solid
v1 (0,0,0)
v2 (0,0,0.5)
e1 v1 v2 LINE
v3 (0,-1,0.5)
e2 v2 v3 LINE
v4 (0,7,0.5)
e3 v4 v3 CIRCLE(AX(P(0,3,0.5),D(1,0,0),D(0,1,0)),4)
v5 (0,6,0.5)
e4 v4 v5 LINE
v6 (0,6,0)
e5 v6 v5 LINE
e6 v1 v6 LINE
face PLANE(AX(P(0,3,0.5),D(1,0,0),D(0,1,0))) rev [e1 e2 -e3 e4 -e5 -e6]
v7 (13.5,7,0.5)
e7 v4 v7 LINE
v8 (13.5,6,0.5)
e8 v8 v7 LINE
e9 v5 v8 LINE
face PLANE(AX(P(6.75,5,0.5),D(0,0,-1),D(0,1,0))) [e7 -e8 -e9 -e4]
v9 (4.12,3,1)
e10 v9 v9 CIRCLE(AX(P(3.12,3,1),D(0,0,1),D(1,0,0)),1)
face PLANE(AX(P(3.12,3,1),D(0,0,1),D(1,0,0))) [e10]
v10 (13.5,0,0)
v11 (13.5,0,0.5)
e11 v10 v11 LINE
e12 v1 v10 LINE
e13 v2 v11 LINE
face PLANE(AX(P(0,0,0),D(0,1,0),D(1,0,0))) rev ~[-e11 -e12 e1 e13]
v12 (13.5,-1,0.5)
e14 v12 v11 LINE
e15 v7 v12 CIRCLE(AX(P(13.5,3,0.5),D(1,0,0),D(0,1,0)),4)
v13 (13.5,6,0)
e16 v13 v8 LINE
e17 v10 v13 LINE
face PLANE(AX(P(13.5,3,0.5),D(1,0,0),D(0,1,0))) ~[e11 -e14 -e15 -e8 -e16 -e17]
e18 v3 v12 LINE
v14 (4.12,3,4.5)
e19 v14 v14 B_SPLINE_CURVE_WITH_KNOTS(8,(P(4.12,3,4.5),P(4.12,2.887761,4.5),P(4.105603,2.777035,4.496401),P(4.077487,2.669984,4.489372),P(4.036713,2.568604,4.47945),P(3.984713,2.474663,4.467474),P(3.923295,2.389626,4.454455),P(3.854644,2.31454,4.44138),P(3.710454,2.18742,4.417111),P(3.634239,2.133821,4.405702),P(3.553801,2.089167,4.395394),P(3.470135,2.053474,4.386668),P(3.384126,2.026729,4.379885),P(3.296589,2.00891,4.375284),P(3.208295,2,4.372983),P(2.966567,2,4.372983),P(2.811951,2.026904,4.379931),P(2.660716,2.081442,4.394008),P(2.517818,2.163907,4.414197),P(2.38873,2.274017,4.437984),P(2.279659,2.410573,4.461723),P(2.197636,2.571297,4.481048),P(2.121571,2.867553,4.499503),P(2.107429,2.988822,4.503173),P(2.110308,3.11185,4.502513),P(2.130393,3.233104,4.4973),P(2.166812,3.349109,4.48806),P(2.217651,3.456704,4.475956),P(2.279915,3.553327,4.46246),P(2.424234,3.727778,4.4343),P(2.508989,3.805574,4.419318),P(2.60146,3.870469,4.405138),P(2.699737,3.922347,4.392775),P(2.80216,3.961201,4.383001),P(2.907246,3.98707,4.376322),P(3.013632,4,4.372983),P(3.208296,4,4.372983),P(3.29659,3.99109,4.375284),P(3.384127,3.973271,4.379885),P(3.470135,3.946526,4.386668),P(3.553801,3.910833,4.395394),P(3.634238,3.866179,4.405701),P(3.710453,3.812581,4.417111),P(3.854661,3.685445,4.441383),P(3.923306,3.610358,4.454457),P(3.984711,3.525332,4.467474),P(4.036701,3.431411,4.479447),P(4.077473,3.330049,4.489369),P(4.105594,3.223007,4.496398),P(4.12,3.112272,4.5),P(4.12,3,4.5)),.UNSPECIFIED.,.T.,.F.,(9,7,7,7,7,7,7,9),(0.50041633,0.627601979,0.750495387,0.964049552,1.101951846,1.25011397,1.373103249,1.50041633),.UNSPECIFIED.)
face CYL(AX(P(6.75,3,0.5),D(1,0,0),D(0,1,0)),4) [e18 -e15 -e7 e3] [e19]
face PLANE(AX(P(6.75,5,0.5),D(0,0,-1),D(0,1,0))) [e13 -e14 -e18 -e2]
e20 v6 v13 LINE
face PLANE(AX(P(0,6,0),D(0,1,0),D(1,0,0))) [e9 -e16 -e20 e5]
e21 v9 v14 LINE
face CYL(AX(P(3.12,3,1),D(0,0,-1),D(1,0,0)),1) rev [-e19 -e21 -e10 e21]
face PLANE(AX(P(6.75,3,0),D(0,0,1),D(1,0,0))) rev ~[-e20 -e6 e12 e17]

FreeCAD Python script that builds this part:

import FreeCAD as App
import Part
import Sketcher
Q = App.Units.Quantity

doc = App.newDocument("Part")
params = doc.addObject("Spreadsheet::Sheet", "Params")
for row, (alias, value) in enumerate([
    ("sketch1_diameter", "2 mm"),
    ("pad1_length", "3.5 mm"),
    ("sketch2_height", "6 mm"),
    ("sketch2_width", "13.5 mm"),
    ("pad2_length", "0.5 mm"),
    ("sketch3_height", "4 mm"),
    ("sketch3_width", "13.5 mm"),
    ("revolution_angle", "180 deg"),
], start=1):
    params.set(f"A{row}", alias)
    params.set(f"B{row}", "=" + value)
    params.setAlias(f"B{row}", alias)

body = doc.addObject("PartDesign::Body", "Body")

sketch1 = body.newObject("Sketcher::SketchObject", "Sketch")
sketch1.AttachmentSupport = (doc.getObject("XY_Plane"), [""])
sketch1.MapMode = "FlatFace"
sketch1.AttachmentOffset = App.Placement(App.Vector(0, 0, 1), App.Rotation())
sketch1.addGeometry(Part.Circle(App.Vector(3.1, 3, 0), App.Vector(0, 0, 1), 1), False)
sketch1.addConstraint([
    Sketcher.Constraint("Diameter", 0, Q("2 mm")),
    Sketcher.Constraint("DistanceY", -1, 1, 0, 3, Q("3 mm")),
    Sketcher.Constraint("DistanceX", -1, 1, 0, 3, Q("3.12 mm")),
])
sketch1.setExpression("Constraints[0]", "Params.sketch1_diameter")
pad1 = body.newObject("PartDesign::Pad", "Pad")
pad1.Profile = sketch1
pad1.setExpression("Length", "Params.pad1_length")
body2 = doc.addObject("PartDesign::Body", "Body001")

sketch2 = body2.newObject("Sketcher::SketchObject", "Sketch001")
sketch2.AttachmentSupport = (doc.getObject("XY_Plane001"), [""])
sketch2.MapMode = "FlatFace"
sketch2.addGeometry([
    Part.LineSegment(App.Vector(0, 6, 0), App.Vector(0, 0, 0)),
    Part.LineSegment(App.Vector(0, 0, 0), App.Vector(14, 0, 0)),
    Part.LineSegment(App.Vector(14, 0, 0), App.Vector(14, 6, 0)),
    Part.LineSegment(App.Vector(14, 6, 0), App.Vector(0, 6, 0)),
], False)
sketch2.addConstraint([
    Sketcher.Constraint("Coincident", 0, 2, 1, 1),
    Sketcher.Constraint("Coincident", 1, 2, 2, 1),
    Sketcher.Constraint("Coincident", 2, 2, 3, 1),
    Sketcher.Constraint("Coincident", 3, 2, 0, 1),
    Sketcher.Constraint("Vertical", 0),
    Sketcher.Constraint("Horizontal", 1),
    Sketcher.Constraint("Vertical", 2),
    Sketcher.Constraint("Horizontal", 3),
    Sketcher.Constraint("Coincident", 0, 2, -1, 1),
    Sketcher.Constraint("DistanceY", 0, 2, 0, 1, Q("6 mm")),
    Sketcher.Constraint("DistanceX", 1, 1, 1, 2, Q("13.5 mm")),
])
sketch2.setExpression("Constraints[9]", "Params.sketch2_height")
sketch2.setExpression("Constraints[10]", "Params.sketch2_width")
pad2 = body2.newObject("PartDesign::Pad", "Pad001")
pad2.Profile = sketch2
pad2.setExpression("Length", "Params.pad2_length")
body3 = doc.addObject("PartDesign::Body", "Body002")

sketch3 = body3.newObject("Sketcher::SketchObject", "Sketch002")
sketch3.AttachmentSupport = (doc.getObject("XY_Plane002"), [""])
sketch3.MapMode = "FlatFace"
sketch3.AttachmentOffset = App.Placement(App.Vector(0, 0, 0.5), App.Rotation())
sketch3.addGeometry([
    Part.LineSegment(App.Vector(13.5, 3, 0), App.Vector(0, 3, 0)),
    Part.LineSegment(App.Vector(0, 3, 0), App.Vector(0, 7, 0)),
    Part.LineSegment(App.Vector(0, 7, 0), App.Vector(13.5, 7, 0)),
    Part.LineSegment(App.Vector(13.5, 7, 0), App.Vector(13.5, 3, 0)),
], False)
sketch3.addGeometry(Part.LineSegment(App.Vector(0, 3, 0), App.Vector(13.5, 3, 0)), True)
sketch3.addConstraint([
    Sketcher.Constraint("Coincident", 0, 2, 1, 1),
    Sketcher.Constraint("Coincident", 1, 2, 2, 1),
    Sketcher.Constraint("Coincident", 2, 2, 3, 1),
    Sketcher.Constraint("Coincident", 3, 2, 0, 1),
    Sketcher.Constraint("Horizontal", 0),
    Sketcher.Constraint("Vertical", 1),
    Sketcher.Constraint("Horizontal", 2),
    Sketcher.Constraint("Vertical", 3),
    Sketcher.Constraint("Horizontal", 4),
    Sketcher.Constraint("Coincident", 4, 1, 0, 2),
    Sketcher.Constraint("PointOnObject", 0, 2, -2),
    Sketcher.Constraint("Vertical", 2, 2, 4, 2),
    Sketcher.Constraint("DistanceY", 1, 1, 1, 2, Q("4 mm")),
    Sketcher.Constraint("DistanceX", 0, 2, 0, 1, Q("13.5 mm")),
    Sketcher.Constraint("DistanceY", -1, 1, 0, 2, Q("3 mm")),
])
sketch3.setExpression("Constraints[12]", "Params.sketch3_height")
sketch3.setExpression("Constraints[13]", "Params.sketch3_width")
revolution = body3.newObject("PartDesign::Revolution", "Revolution")
revolution.Profile = sketch3
revolution.ReferenceAxis = (sketch3, ["Axis0"])
revolution.setExpression("Angle", "Params.revolution_angle")
doc.recompute()

boolean = body3.newObject("PartDesign::Boolean", "Boolean")
boolean.Type = "Fuse"
boolean.addObjects([body2])
doc.recompute()

boolean2 = body3.newObject("PartDesign::Boolean", "Boolean001")
boolean2.Type = "Cut"
boolean2.addObjects([body])

doc.recompute()
